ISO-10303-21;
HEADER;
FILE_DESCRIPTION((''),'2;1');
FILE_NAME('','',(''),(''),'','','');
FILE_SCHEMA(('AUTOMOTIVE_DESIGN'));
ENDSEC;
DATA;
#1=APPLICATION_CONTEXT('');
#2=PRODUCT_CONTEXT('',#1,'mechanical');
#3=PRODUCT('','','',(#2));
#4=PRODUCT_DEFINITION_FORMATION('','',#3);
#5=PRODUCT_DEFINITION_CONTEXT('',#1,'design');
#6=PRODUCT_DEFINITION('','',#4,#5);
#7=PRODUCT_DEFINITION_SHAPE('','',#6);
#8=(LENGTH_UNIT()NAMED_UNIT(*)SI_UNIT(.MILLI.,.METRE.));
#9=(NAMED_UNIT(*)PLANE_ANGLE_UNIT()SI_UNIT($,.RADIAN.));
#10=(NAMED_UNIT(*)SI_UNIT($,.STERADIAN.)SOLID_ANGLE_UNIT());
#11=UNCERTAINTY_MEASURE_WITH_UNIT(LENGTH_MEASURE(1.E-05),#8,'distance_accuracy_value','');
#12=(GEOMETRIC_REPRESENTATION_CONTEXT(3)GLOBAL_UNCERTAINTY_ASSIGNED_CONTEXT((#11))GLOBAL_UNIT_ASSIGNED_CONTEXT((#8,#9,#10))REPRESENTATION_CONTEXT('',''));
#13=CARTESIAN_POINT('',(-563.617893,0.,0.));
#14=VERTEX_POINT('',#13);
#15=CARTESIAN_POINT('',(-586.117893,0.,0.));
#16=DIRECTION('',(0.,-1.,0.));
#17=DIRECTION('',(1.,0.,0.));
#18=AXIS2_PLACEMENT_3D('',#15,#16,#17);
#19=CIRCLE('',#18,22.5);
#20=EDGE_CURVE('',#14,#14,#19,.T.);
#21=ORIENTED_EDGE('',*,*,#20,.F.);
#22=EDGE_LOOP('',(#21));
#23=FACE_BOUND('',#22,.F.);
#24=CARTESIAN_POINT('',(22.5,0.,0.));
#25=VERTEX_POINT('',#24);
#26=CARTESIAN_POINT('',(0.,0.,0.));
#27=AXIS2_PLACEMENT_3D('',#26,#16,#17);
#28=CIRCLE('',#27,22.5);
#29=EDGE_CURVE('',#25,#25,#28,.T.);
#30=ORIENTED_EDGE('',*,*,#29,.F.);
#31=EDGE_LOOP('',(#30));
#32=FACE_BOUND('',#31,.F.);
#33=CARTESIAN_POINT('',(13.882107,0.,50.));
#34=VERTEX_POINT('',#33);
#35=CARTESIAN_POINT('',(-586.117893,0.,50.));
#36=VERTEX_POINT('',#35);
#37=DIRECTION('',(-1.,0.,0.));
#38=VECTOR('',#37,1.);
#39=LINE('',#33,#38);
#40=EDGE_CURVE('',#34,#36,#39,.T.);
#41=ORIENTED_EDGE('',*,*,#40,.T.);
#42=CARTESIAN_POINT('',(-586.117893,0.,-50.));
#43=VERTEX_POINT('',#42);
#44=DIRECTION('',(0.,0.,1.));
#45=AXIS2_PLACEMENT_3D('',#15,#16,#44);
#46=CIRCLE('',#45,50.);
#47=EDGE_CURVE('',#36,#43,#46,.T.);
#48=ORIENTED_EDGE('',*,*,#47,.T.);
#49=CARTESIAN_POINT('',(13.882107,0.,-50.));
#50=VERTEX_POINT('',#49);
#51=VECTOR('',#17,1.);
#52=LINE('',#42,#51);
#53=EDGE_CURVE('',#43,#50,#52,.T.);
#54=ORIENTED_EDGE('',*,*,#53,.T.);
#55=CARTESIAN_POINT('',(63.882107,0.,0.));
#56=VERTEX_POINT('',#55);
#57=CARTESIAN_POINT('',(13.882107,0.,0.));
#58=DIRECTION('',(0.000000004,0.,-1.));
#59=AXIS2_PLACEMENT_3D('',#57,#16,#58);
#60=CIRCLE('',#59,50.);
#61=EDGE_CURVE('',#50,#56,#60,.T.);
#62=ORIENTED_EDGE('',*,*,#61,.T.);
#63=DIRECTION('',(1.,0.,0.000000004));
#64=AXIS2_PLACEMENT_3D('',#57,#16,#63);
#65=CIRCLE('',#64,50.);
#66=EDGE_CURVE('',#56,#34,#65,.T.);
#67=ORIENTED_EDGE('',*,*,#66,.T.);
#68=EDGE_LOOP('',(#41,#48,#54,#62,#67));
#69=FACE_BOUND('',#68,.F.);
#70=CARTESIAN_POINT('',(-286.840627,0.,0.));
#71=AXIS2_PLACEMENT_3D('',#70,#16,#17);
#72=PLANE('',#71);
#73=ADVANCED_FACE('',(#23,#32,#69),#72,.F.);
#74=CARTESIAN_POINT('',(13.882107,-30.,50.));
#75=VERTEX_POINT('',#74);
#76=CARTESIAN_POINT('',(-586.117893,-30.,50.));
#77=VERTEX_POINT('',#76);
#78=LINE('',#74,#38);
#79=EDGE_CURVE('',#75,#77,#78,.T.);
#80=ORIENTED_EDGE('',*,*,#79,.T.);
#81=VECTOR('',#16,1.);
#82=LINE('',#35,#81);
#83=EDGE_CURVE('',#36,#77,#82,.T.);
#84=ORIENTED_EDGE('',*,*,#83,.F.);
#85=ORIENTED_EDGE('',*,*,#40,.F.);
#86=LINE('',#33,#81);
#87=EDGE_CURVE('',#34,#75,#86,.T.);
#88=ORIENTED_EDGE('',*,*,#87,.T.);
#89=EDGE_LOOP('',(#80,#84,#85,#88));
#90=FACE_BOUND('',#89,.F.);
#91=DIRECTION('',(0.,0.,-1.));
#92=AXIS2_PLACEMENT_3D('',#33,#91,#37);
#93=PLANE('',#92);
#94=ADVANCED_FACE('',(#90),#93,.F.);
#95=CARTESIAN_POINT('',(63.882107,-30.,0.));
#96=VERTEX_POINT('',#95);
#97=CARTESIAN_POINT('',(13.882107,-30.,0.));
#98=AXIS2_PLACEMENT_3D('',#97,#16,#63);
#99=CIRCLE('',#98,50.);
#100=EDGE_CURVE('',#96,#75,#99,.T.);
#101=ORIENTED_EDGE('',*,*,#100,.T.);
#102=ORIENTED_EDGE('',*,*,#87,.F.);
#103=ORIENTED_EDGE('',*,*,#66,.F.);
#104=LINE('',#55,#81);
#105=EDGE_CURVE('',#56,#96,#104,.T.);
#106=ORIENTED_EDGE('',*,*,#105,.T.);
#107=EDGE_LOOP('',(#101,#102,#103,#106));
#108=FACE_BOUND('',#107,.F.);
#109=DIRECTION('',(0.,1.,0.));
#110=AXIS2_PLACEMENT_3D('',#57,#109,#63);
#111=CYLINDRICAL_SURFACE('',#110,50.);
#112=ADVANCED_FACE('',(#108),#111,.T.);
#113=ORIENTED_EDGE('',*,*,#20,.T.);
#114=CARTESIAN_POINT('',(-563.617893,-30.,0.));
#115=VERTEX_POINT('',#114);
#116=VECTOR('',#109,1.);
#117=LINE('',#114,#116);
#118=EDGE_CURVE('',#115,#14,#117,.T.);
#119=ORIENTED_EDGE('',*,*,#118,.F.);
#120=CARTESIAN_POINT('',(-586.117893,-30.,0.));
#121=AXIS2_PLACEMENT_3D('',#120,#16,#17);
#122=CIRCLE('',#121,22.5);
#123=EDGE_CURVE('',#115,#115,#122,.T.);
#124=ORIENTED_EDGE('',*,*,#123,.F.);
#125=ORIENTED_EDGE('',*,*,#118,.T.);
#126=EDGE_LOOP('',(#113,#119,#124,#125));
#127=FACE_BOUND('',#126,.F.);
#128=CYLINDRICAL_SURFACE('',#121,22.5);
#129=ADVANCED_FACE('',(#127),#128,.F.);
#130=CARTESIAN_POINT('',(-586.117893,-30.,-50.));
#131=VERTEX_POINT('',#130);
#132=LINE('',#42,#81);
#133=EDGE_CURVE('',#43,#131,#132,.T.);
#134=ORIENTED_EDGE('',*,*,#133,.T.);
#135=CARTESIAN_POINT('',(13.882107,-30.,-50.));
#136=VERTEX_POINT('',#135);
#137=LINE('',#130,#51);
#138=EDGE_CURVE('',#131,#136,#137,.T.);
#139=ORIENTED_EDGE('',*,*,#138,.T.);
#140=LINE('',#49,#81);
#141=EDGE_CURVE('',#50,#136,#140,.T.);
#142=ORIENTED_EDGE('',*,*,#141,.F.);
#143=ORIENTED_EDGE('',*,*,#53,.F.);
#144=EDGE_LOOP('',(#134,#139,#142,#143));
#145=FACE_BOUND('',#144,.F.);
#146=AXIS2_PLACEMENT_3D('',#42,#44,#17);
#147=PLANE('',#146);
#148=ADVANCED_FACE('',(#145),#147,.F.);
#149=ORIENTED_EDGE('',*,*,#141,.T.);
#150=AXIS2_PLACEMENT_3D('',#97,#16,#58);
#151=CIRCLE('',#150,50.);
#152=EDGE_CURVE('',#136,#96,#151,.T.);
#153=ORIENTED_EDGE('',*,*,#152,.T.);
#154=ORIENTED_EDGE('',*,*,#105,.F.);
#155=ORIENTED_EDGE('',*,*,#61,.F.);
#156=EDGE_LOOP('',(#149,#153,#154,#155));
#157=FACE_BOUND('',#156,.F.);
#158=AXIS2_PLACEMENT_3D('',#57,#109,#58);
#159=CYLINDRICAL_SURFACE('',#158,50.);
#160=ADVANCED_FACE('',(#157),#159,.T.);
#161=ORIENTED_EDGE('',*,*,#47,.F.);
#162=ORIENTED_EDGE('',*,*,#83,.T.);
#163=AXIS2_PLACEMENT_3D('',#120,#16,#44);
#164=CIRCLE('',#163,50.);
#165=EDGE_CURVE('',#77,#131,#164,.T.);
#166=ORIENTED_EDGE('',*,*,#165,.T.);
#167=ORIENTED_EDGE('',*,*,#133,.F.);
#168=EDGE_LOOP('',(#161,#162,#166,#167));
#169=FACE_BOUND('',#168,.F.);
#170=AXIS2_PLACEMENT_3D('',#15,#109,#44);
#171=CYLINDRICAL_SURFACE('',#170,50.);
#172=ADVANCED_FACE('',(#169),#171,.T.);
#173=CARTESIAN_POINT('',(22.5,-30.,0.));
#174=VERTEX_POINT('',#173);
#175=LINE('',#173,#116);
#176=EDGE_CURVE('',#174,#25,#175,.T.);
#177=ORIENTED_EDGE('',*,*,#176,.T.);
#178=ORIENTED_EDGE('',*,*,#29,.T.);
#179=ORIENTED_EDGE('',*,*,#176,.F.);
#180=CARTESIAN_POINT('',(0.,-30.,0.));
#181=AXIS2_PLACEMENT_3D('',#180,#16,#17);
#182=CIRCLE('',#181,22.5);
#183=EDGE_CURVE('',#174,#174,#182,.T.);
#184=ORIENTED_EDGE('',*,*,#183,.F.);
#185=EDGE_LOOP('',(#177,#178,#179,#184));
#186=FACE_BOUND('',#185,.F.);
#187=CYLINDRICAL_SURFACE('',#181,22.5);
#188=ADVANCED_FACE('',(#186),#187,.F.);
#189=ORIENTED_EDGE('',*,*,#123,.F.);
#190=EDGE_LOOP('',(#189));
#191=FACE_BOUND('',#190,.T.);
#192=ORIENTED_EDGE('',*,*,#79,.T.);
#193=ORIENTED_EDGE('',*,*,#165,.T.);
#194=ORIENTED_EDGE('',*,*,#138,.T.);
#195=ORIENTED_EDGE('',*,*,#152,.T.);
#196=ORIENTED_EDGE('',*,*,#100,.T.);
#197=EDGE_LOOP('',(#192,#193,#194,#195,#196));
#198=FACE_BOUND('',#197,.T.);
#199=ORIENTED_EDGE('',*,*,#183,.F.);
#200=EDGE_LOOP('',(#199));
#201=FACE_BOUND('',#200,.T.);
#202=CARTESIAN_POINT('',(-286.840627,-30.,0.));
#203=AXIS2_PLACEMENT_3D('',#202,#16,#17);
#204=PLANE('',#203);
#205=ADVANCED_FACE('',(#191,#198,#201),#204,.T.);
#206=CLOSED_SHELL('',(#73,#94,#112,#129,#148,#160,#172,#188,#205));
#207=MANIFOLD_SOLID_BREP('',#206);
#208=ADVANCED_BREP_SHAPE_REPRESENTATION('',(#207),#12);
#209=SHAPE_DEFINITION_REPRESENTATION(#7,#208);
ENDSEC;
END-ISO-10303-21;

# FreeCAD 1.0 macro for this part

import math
import FreeCAD as App
import Part
import Sketcher

V = App.Vector
Q = App.Units.Quantity

doc = App.newDocument("Part")
params = doc.addObject("Spreadsheet::Sheet", "Params")
for row, (alias, value) in enumerate([
    ("sketch1_radius", "50 mm"),
    ("sketch1_width", "600 mm"),
    ("pad1_length", "30 mm"),
    ("sketch2_diameter", "45 mm"),
], start=1):
    params.set(f"A{row}", alias)
    params.set(f"B{row}", "=" + value)
    params.setAlias(f"B{row}", alias)

body = doc.addObject("PartDesign::Body", "Body")

# Sketch on XZ plane
sketch1 = doc.addObject("Sketcher::SketchObject", "Sketch")
body.addObject(sketch1)
sketch1.AttachmentSupport = (doc.XZ_Plane, [""])
sketch1.MapMode = "FlatFace"
sketch1.addGeometry([
    Part.LineSegment(V(-586, -50, 0), V(14, -50, 0)),  # 0
    Part.ArcOfCircle(Part.Circle(V(14, 0, 0), V(0, 0, 1), 50), math.radians(-90), math.radians(0)),  # 1
    Part.ArcOfCircle(Part.Circle(V(14, 0, 0), V(0, 0, 1), 50), math.radians(0), math.radians(90)),  # 2
    Part.LineSegment(V(14, 50, 0), V(-586, 50, 0)),  # 3
    Part.ArcOfCircle(Part.Circle(V(-586, 0, 0), V(0, 0, 1), 50), math.radians(90), math.radians(270)),  # 4
], False)
sketch1.addConstraint([
    Sketcher.Constraint("Tangent", 0, 2, 1, 1),
    Sketcher.Constraint("Tangent", 1, 2, 2, 1),
    Sketcher.Constraint("Tangent", 2, 2, 3, 1),
    Sketcher.Constraint("Tangent", 3, 2, 4, 1),
    Sketcher.Constraint("Tangent", 4, 2, 0, 1),
    Sketcher.Constraint("Horizontal", 0),
    Sketcher.Constraint("Horizontal", 3),
    Sketcher.Constraint("Equal", 1, 2),
    Sketcher.Constraint("PointOnObject", 1, 3, -1),
    Sketcher.Constraint("PointOnObject", 1, 2, -1),
    Sketcher.Constraint("Radius", 1, Q("50 mm")),
    Sketcher.Constraint("DistanceX", 0, 1, 0, 2, Q("600 mm")),
    Sketcher.Constraint("DistanceX", -1, 1, 1, 3, Q("13.882107 mm")),
])
sketch1.setExpression("Constraints[10]", "Params.sketch1_radius")
sketch1.setExpression("Constraints[11]", "Params.sketch1_width")
pad1 = doc.addObject("PartDesign::Pad", "Pad")
body.addObject(pad1)
pad1.Profile = sketch1
pad1.setExpression("Length", "Params.pad1_length")

# Sketch on XZ plane
sketch2 = doc.addObject("Sketcher::SketchObject", "Sketch001")
body.addObject(sketch2)
sketch2.AttachmentSupport = (doc.XZ_Plane, [""])
sketch2.MapMode = "FlatFace"
sketch2.AttachmentOffset = App.Placement(V(0, 0, 30), App.Rotation())
sketch2.addGeometry([
    Part.Circle(V(-586, 0, 0), V(0, 0, 1), 22),
    Part.Circle(V(0, 0, 0), V(0, 0, 1), 22),
], False)
sketch2.addConstraint([
    Sketcher.Constraint("Coincident", 1, 3, -1, 1),
    Sketcher.Constraint("Equal", 0, 1),
    Sketcher.Constraint("PointOnObject", 0, 3, -1),
    Sketcher.Constraint("Diameter", 0, Q("45 mm")),
    Sketcher.Constraint("DistanceX", 0, 3, -1, 1, Q("586.117893 mm")),
])
sketch2.setExpression("Constraints[3]", "Params.sketch2_diameter")
pocket1 = doc.addObject("PartDesign::Pocket", "Pocket")
body.addObject(pocket1)
pocket1.Profile = sketch2
pocket1.Type = "ThroughAll"

doc.recompute()
